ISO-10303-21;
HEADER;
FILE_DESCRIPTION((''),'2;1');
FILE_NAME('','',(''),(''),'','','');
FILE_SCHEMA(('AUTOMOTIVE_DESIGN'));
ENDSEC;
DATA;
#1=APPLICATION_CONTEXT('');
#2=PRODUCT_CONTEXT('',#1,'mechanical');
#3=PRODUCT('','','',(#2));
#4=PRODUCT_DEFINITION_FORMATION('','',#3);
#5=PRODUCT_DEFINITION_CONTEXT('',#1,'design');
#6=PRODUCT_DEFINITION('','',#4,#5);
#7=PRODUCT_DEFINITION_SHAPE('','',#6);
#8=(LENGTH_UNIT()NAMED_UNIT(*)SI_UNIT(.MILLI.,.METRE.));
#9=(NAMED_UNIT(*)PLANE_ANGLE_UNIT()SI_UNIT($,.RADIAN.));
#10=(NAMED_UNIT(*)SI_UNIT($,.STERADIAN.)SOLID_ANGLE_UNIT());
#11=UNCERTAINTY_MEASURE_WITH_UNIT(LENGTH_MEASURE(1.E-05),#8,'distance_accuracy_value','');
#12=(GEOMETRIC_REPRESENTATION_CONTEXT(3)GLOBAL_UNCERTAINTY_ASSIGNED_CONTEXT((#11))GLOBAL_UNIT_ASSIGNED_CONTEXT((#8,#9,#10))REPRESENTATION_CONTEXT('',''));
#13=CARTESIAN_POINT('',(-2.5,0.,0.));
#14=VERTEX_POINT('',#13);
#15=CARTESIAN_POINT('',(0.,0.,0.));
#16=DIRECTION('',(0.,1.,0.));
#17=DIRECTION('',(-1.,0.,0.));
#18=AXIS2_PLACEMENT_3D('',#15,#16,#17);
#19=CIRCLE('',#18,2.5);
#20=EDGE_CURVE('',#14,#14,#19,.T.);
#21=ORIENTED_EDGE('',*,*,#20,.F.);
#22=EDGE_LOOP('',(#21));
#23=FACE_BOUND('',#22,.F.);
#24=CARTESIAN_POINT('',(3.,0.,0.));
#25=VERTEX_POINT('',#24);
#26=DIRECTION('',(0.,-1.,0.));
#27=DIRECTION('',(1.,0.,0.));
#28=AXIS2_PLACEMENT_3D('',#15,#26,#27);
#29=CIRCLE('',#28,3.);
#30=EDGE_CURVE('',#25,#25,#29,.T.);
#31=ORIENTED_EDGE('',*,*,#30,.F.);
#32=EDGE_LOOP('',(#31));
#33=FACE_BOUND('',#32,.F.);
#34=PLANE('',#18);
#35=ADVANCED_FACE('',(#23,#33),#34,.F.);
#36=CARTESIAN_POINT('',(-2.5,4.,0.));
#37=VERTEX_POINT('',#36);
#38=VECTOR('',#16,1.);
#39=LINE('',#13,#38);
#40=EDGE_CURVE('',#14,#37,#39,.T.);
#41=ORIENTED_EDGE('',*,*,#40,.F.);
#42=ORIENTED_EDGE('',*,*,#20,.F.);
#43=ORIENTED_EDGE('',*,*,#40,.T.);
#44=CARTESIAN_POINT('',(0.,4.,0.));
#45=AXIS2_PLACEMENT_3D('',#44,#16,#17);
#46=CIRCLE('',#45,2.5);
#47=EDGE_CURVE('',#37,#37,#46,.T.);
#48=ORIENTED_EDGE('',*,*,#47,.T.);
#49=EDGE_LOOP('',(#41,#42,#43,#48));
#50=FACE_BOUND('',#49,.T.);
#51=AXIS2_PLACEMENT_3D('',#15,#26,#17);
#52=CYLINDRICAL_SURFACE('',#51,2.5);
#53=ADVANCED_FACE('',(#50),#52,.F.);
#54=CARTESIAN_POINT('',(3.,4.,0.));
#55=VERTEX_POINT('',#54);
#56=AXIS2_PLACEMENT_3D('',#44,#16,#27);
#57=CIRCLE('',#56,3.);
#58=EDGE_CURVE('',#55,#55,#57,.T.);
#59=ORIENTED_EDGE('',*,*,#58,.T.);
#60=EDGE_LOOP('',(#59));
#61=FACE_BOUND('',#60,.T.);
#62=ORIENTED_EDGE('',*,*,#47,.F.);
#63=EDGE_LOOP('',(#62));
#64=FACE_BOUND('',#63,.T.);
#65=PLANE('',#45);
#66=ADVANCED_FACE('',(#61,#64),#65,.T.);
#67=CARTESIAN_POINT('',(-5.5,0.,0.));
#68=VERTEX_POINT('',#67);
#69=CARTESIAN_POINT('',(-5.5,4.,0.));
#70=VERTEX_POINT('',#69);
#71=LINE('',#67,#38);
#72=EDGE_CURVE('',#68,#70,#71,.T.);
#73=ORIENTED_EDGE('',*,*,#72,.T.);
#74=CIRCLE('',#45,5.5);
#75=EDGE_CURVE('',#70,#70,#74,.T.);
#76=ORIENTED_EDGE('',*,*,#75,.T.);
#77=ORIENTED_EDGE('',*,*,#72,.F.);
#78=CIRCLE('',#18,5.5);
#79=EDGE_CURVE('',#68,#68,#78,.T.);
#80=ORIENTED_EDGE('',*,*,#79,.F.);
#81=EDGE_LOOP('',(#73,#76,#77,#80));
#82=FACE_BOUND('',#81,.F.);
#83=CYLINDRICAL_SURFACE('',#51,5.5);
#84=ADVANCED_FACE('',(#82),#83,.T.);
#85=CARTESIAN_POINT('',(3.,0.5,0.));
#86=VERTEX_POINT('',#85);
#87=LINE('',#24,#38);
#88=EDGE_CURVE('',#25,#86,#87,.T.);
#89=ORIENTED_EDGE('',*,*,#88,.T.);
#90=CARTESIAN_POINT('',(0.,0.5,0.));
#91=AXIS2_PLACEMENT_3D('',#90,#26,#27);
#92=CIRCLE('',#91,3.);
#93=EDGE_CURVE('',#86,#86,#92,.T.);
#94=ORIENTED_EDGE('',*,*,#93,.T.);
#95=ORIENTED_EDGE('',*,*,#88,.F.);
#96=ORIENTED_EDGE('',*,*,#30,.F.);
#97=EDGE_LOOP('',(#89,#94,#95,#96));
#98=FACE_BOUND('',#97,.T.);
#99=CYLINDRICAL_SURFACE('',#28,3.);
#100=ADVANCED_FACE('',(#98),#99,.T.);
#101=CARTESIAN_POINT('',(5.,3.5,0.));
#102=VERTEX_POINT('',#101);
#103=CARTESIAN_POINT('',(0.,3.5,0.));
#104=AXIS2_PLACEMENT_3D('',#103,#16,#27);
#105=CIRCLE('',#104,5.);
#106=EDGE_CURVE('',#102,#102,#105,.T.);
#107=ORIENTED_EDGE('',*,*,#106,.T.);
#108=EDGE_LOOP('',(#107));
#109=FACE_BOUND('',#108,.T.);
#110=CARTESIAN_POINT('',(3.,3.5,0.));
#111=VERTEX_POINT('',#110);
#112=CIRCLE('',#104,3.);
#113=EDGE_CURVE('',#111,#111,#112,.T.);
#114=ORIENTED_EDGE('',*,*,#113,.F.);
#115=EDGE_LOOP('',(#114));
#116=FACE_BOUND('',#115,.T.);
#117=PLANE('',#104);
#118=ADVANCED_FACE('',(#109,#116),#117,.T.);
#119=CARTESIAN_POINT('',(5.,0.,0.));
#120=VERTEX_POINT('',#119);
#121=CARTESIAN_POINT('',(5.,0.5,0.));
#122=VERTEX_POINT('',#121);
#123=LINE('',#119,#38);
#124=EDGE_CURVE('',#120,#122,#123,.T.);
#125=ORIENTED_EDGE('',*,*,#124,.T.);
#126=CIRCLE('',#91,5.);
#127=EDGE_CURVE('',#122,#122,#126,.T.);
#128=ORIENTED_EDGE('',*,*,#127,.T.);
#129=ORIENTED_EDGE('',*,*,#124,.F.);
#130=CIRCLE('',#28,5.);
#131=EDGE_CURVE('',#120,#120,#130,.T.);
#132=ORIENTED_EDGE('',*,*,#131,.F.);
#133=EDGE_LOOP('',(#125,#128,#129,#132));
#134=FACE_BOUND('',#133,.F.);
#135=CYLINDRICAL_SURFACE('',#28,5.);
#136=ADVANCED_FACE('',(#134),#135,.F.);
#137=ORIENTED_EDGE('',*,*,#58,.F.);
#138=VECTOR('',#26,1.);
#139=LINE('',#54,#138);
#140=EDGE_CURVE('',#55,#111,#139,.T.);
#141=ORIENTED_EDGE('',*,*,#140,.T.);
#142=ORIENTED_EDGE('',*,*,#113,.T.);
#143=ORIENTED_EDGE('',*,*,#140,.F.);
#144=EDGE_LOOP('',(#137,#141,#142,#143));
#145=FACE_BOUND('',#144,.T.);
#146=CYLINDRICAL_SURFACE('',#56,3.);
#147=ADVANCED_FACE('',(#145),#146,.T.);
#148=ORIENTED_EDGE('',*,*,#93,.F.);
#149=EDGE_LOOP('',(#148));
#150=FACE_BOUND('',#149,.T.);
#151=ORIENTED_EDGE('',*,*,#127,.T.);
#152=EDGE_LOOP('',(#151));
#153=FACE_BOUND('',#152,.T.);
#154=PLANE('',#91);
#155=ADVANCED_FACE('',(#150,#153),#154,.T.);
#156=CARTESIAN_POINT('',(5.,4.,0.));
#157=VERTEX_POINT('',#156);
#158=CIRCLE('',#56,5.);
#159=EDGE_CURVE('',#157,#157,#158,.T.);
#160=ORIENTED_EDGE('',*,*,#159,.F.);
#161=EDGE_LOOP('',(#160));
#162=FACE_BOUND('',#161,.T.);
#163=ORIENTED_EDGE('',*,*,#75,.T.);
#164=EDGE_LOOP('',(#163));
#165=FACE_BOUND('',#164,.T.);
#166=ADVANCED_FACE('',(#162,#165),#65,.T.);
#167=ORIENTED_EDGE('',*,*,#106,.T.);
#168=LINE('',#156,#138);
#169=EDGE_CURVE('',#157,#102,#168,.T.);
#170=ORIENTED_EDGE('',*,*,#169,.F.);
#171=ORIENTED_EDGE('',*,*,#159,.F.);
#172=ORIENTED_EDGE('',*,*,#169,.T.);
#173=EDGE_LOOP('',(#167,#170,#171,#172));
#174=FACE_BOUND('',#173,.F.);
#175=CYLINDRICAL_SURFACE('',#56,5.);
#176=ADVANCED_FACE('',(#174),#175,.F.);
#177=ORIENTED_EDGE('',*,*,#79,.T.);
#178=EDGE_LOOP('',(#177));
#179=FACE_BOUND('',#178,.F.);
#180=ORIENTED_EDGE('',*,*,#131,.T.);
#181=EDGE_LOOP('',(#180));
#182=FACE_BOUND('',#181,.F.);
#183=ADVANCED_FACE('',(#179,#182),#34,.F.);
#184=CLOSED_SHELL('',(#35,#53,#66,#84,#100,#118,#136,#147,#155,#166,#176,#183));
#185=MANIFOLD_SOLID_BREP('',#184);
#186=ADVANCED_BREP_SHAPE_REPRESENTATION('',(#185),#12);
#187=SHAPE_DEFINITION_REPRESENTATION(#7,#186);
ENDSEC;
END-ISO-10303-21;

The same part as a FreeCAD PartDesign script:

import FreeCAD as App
import Part
import Sketcher

doc = App.newDocument("Part")
body = doc.addObject("PartDesign::Body", "Body")

# Sketch on XZ plane
sketch1 = doc.addObject("Sketcher::SketchObject", "Sketch")
body.addObject(sketch1)
sketch1.AttachmentSupport = (doc.XZ_Plane, [""])
sketch1.MapMode = "FlatFace"
sketch1.addGeometry(Part.Circle(App.Vector(0, 0, 0), App.Vector(0, 0, 1), 5.5), False)
sketch1.addGeometry(Part.Circle(App.Vector(0, 0, 0), App.Vector(0, 0, 1), 2.5), False)
sketch1.addConstraint(Sketcher.Constraint("Coincident", 0, 3, -1, 1))
sketch1.addConstraint(Sketcher.Constraint("Coincident", 1, 3, -1, 1))
sketch1.addConstraint(Sketcher.Constraint("Diameter", 0, 11.0))
sketch1.addConstraint(Sketcher.Constraint("Diameter", 1, 5.0))
pad1 = doc.addObject("PartDesign::Pad", "Pad")
body.addObject(pad1)
pad1.Profile = sketch1
pad1.Length = 4
pad1.Reversed = True

# Sketch on XZ plane
sketch2 = doc.addObject("Sketcher::SketchObject", "Sketch001")
body.addObject(sketch2)
sketch2.AttachmentSupport = (doc.XZ_Plane, [""])
sketch2.MapMode = "FlatFace"
sketch2.AttachmentOffset = App.Placement(App.Vector(0, 0, -4), App.Rotation())
sketch2.addGeometry(Part.Circle(App.Vector(0, 0, 0), App.Vector(0, 0, 1), 5), False)
sketch2.addGeometry(Part.Circle(App.Vector(0, 0, 0), App.Vector(0, 0, 1), 3), False)
sketch2.addConstraint(Sketcher.Constraint("Coincident", 0, 3, -1, 1))
sketch2.addConstraint(Sketcher.Constraint("Coincident", 1, 3, -1, 1))
sketch2.addConstraint(Sketcher.Constraint("Diameter", 0, 10.0))
sketch2.addConstraint(Sketcher.Constraint("Diameter", 1, 6.0))
pocket1 = doc.addObject("PartDesign::Pocket", "Pocket")
body.addObject(pocket1)
pocket1.Profile = sketch2
pocket1.Length = 0.5
pocket1.Reversed = True

# Sketch on XZ plane
sketch3 = doc.addObject("Sketcher::SketchObject", "Sketch002")
body.addObject(sketch3)
sketch3.AttachmentSupport = (doc.XZ_Plane, [""])
sketch3.MapMode = "FlatFace"
sketch3.addGeometry(Part.Circle(App.Vector(0, 0, 0), App.Vector(0, 0, 1), 5), False)
sketch3.addGeometry(Part.Circle(App.Vector(0, 0, 0), App.Vector(0, 0, 1), 3), False)
sketch3.addConstraint(Sketcher.Constraint("Coincident", 0, 3, -1, 1))
sketch3.addConstraint(Sketcher.Constraint("Coincident", 1, 3, -1, 1))
sketch3.addConstraint(Sketcher.Constraint("Diameter", 0, 10.0))
sketch3.addConstraint(Sketcher.Constraint("Diameter", 1, 6.0))
pocket2 = doc.addObject("PartDesign::Pocket", "Pocket001")
body.addObject(pocket2)
pocket2.Profile = sketch3
pocket2.Length = 0.5

doc.recompute()
